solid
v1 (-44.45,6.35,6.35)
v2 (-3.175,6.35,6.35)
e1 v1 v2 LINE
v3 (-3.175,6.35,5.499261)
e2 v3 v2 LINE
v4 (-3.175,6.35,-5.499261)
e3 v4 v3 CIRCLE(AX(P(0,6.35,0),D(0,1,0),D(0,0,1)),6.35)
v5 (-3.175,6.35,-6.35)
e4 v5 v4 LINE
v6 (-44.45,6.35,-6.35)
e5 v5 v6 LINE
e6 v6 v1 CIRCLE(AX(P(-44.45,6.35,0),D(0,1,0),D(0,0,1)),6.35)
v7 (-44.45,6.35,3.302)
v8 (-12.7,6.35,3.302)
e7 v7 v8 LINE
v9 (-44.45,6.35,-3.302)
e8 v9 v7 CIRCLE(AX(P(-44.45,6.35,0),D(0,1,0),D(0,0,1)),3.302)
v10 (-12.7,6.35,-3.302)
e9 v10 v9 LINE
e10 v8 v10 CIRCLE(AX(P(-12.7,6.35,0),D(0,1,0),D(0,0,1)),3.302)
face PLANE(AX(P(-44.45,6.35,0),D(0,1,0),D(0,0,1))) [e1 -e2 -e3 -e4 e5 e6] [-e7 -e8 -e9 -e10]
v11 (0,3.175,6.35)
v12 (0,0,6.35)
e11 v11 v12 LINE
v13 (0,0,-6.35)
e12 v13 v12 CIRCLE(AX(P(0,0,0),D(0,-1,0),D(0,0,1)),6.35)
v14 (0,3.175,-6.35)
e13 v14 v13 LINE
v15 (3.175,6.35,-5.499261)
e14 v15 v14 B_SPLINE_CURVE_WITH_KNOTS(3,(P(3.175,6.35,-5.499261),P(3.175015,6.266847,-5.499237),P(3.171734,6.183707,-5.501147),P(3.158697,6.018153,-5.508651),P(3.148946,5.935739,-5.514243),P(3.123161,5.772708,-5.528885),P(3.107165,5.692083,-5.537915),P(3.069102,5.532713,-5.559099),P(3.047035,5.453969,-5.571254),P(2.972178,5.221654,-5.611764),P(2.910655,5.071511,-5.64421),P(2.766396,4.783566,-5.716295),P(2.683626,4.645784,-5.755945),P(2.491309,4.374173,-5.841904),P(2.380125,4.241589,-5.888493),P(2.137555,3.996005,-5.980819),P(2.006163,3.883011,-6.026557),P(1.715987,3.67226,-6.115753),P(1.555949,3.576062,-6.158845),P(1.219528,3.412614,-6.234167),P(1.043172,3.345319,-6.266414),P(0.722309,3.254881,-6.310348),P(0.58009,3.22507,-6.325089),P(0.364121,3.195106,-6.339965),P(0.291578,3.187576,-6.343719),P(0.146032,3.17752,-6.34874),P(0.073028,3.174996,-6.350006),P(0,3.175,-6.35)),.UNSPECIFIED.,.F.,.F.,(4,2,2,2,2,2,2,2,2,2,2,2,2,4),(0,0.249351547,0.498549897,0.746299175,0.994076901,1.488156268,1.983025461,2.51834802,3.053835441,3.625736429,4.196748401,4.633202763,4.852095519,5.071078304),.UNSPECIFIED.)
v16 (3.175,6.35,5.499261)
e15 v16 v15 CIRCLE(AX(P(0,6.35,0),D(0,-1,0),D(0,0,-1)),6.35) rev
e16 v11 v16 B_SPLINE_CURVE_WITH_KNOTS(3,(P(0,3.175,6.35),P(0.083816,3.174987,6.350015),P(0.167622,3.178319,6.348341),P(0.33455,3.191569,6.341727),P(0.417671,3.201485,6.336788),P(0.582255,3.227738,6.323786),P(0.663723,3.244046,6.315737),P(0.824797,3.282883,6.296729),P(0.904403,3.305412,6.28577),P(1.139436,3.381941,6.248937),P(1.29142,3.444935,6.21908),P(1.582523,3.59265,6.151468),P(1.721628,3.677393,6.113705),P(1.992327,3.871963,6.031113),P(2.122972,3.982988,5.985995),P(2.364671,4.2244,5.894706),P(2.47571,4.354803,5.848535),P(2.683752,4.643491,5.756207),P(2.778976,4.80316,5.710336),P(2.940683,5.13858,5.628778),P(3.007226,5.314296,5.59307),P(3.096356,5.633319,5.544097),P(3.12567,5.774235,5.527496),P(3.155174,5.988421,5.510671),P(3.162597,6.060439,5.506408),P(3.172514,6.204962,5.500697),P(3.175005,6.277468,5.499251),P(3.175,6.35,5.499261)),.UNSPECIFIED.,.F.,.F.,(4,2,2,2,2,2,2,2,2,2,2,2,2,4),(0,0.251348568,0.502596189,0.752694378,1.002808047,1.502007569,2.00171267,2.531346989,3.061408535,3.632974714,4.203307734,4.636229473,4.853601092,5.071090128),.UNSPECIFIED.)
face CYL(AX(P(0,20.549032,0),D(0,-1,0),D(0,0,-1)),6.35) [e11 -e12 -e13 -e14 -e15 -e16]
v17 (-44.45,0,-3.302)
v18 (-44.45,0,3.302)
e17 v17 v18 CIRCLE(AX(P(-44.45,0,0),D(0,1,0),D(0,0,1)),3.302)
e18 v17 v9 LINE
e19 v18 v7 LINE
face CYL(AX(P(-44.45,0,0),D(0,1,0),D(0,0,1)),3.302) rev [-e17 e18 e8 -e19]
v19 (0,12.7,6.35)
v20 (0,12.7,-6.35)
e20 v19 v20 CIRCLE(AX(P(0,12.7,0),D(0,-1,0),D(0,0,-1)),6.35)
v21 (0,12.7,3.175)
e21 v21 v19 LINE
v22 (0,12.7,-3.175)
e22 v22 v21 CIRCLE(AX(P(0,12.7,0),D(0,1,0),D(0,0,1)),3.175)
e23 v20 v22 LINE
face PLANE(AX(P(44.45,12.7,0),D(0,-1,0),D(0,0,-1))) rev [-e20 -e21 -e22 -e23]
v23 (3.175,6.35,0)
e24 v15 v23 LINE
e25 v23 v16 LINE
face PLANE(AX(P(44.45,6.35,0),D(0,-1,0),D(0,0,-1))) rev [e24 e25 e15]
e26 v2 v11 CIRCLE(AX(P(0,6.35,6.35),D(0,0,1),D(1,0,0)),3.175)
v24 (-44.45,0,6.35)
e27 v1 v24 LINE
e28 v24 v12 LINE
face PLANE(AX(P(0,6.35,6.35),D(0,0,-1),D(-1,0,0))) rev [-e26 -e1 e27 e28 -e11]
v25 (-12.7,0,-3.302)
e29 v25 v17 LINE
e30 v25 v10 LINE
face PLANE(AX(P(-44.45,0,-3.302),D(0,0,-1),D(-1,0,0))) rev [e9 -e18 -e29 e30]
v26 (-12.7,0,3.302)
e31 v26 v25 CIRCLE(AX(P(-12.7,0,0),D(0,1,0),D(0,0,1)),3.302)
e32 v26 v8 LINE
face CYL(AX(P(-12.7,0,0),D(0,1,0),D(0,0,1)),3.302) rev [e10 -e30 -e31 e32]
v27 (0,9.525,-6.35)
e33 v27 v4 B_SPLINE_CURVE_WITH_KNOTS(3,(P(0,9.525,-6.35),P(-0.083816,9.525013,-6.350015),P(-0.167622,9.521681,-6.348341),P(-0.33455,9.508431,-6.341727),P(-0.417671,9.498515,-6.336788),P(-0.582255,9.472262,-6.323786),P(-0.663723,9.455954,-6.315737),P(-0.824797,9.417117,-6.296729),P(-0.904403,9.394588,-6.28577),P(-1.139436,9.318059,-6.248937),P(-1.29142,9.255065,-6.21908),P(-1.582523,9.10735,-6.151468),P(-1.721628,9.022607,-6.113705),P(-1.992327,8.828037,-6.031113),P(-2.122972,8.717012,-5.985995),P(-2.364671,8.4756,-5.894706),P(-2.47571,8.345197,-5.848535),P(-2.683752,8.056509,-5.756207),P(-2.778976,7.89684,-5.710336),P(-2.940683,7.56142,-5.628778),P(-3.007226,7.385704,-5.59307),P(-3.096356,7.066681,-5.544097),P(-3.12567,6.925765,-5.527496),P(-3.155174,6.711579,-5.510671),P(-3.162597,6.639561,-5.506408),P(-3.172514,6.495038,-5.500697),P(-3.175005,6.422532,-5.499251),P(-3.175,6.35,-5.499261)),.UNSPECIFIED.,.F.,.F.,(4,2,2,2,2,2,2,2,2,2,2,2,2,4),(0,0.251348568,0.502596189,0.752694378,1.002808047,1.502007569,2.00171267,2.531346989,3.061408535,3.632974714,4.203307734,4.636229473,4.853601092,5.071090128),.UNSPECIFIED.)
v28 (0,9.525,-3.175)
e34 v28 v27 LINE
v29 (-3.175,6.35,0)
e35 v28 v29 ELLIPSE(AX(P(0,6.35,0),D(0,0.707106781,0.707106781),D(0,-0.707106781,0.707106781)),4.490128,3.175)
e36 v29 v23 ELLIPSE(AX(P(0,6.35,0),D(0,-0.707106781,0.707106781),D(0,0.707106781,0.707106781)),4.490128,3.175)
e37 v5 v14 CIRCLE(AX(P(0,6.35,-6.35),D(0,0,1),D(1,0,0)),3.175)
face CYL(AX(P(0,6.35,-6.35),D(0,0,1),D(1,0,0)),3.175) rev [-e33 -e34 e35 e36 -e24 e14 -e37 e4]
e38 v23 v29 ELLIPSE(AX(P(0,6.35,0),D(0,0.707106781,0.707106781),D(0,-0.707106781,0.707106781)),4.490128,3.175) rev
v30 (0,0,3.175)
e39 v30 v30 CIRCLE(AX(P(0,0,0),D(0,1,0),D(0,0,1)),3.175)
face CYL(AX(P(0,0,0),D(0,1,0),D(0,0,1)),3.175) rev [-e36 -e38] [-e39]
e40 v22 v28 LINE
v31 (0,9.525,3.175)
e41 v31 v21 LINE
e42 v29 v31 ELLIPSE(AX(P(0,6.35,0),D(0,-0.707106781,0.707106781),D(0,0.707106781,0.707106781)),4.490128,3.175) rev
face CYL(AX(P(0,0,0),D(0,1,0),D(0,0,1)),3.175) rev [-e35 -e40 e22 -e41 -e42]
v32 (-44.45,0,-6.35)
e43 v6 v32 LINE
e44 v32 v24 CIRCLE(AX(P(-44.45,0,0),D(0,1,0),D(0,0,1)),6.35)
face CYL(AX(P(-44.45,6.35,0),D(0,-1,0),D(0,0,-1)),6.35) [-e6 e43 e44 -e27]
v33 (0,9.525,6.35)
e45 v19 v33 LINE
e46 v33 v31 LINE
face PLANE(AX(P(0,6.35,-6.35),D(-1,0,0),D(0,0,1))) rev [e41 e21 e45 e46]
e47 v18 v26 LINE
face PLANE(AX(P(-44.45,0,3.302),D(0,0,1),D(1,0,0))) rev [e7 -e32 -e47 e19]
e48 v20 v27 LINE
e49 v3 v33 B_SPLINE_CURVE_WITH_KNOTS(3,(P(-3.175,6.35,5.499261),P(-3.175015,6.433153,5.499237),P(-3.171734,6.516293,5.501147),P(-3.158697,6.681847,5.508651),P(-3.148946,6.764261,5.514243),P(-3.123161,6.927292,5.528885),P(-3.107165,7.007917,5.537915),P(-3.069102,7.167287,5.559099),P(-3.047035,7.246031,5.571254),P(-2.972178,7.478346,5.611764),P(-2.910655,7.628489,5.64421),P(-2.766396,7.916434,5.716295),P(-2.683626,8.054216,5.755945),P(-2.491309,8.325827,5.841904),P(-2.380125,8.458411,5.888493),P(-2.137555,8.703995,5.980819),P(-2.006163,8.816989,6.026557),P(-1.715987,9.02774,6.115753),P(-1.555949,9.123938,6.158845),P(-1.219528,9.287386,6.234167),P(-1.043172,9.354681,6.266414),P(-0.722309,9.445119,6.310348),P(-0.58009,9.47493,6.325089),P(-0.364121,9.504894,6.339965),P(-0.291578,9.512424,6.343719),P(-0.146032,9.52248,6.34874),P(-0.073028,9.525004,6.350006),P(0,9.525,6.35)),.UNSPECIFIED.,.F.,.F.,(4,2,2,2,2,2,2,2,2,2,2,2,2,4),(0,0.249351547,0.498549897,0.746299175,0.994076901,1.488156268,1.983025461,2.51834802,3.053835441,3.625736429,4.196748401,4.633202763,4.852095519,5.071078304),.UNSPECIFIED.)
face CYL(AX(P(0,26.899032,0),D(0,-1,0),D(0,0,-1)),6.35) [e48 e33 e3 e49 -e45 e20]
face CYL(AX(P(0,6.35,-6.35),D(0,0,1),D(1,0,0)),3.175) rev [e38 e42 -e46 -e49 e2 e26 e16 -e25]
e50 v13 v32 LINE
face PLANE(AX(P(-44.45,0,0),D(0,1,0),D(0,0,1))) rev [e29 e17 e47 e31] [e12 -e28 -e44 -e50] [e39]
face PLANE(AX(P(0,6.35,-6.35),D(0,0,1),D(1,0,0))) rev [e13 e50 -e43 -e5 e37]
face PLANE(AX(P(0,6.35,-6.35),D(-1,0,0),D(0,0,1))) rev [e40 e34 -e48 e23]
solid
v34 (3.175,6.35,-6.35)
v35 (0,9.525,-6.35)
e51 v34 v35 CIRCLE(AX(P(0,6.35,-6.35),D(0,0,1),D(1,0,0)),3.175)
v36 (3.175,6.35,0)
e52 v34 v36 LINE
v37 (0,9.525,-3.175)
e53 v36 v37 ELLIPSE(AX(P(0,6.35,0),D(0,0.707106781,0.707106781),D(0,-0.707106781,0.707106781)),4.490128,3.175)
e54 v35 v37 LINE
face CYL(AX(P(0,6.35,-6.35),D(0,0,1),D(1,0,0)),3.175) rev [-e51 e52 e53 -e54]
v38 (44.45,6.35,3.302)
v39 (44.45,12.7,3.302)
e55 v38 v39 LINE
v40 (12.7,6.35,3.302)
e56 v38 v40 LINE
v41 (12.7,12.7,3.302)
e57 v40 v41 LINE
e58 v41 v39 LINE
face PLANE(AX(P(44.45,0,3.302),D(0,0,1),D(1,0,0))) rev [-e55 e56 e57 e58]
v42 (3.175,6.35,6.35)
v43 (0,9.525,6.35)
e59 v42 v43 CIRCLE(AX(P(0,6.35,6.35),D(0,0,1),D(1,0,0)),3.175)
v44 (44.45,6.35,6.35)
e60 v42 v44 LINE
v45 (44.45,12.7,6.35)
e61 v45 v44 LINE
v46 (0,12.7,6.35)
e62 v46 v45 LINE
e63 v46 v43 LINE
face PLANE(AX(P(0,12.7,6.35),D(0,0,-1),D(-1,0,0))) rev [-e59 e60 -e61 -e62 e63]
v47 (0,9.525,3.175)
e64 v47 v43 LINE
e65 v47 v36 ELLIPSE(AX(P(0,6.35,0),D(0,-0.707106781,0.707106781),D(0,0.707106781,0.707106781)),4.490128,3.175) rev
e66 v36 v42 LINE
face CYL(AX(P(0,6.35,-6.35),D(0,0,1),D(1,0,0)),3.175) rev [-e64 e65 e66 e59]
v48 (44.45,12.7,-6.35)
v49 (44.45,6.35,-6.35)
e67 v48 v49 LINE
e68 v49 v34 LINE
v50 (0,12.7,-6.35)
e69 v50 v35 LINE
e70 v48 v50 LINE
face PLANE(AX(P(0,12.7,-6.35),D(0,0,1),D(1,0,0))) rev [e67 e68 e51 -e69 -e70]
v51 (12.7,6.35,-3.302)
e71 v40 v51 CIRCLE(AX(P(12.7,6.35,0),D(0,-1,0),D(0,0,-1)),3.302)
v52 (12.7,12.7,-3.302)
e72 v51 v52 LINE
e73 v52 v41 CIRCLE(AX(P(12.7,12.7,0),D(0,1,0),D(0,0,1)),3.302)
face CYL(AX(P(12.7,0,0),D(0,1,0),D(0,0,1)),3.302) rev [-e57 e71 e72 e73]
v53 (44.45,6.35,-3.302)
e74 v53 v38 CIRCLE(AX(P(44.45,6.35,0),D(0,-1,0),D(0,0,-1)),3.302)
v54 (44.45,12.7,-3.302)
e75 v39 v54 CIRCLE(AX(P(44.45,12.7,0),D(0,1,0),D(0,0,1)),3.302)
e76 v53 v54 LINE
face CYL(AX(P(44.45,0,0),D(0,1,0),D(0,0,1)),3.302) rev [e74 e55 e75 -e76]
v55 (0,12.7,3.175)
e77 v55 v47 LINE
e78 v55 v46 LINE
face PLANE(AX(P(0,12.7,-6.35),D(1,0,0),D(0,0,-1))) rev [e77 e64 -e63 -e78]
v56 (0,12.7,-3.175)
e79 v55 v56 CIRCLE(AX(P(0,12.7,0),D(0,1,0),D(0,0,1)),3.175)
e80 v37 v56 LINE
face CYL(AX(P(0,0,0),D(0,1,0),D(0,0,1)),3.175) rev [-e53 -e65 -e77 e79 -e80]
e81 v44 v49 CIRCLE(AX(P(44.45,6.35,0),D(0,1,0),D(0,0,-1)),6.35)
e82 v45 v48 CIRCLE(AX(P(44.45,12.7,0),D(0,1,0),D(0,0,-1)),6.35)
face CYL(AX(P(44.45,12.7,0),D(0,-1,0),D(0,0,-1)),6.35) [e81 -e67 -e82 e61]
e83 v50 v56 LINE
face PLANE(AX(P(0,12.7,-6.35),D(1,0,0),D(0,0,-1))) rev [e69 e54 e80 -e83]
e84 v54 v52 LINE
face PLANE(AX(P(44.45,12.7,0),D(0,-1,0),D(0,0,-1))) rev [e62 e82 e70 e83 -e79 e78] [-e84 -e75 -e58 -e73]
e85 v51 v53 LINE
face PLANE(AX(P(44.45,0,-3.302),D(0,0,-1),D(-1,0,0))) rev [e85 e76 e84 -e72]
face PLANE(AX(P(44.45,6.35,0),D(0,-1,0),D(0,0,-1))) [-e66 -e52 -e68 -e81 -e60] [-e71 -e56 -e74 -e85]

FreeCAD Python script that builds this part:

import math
import FreeCAD as App
import Part
import Sketcher
Q = App.Units.Quantity

doc = App.newDocument("Part")
body = doc.addObject("PartDesign::Body", "Body")

# Sketch on XZ plane
sketch1 = doc.addObject("Sketcher::SketchObject", "Sketch")
body.addObject(sketch1)
sketch1.AttachmentSupport = (doc.XZ_Plane, [""])
sketch1.MapMode = "FlatFace"
sketch1.addGeometry(Part.LineSegment(App.Vector(0, -6, 0), App.Vector(-44, -6, 0)), False)
sketch1.addGeometry(Part.ArcOfCircle(Part.Circle(App.Vector(-44, 0, 0), App.Vector(0, 0, 1), 6), math.radians(90), math.radians(270)), False)
sketch1.addGeometry(Part.LineSegment(App.Vector(-44, 6, 0), App.Vector(0, 6, 0)), False)
sketch1.addGeometry(Part.LineSegment(App.Vector(0, 6, 0), App.Vector(0, -6, 0)), False)
sketch1.addConstraint(Sketcher.Constraint("Tangent", 0, 2, 1, 2))
sketch1.addConstraint(Sketcher.Constraint("Tangent", 1, 1, 2, 1))
sketch1.addConstraint(Sketcher.Constraint("Coincident", 2, 2, 3, 1))
sketch1.addConstraint(Sketcher.Constraint("Coincident", 3, 2, 0, 1))
sketch1.addConstraint(Sketcher.Constraint("Horizontal", 0))
sketch1.addConstraint(Sketcher.Constraint("Horizontal", 2))
sketch1.addConstraint(Sketcher.Constraint("Vertical", 3))
sketch1.addConstraint(Sketcher.Constraint("Symmetric", 2, 2, 3, 2, -1, 1))
sketch1.addConstraint(Sketcher.Constraint("Radius", 1, Q("0.25 in")))
sketch1.addConstraint(Sketcher.Constraint("DistanceX", 0, 2, 0, 1, Q("1.75 in")))
pad1 = doc.addObject("PartDesign::Pad", "Pad")
body.addObject(pad1)
pad1.Profile = sketch1
pad1.Length = Q("0.25 in")
pad1.Reversed = True

# Sketch on XZ plane
sketch2 = doc.addObject("Sketcher::SketchObject", "Sketch001")
body.addObject(sketch2)
sketch2.AttachmentSupport = (doc.XZ_Plane, [""])
sketch2.MapMode = "FlatFace"
sketch2.AttachmentOffset = App.Placement(App.Vector(0, 0, -0.25 * 25.4), App.Rotation())
sketch2.addGeometry(Part.LineSegment(App.Vector(0, 6, 0), App.Vector(0, -6, 0)), False)
sketch2.addGeometry(Part.ArcOfCircle(Part.Circle(App.Vector(0, 0, 0), App.Vector(0, 0, 1), 6), math.radians(90), math.radians(270)), False)
sketch2.addConstraint(Sketcher.Constraint("Coincident", 0, 1, 1, 1))
sketch2.addConstraint(Sketcher.Constraint("Coincident", 1, 2, 0, 2))
sketch2.addConstraint(Sketcher.Constraint("Vertical", 0))
sketch2.addConstraint(Sketcher.Constraint("Coincident", 1, 3, -1, 1))
sketch2.addConstraint(Sketcher.Constraint("PointOnObject", 0, 1, -2))
sketch2.addConstraint(Sketcher.Constraint("Radius", 1, Q("0.25 in")))
pad2 = doc.addObject("PartDesign::Pad", "Pad001")
body.addObject(pad2)
pad2.Profile = sketch2
pad2.Length = Q("0.25 in")
pad2.Reversed = True

# Sketch on XZ plane
sketch3 = doc.addObject("Sketcher::SketchObject", "Sketch002")
body.addObject(sketch3)
sketch3.AttachmentSupport = (doc.XZ_Plane, [""])
sketch3.MapMode = "FlatFace"
sketch3.addGeometry(Part.LineSegment(App.Vector(0, 6, 0), App.Vector(0, -6, 0)), False)
sketch3.addGeometry(Part.ArcOfCircle(Part.Circle(App.Vector(0, 0, 0), App.Vector(0, 0, 1), 6), math.radians(-90), math.radians(90)), False)
sketch3.addConstraint(Sketcher.Constraint("Coincident", 0, 1, 1, 2))
sketch3.addConstraint(Sketcher.Constraint("Coincident", 1, 1, 0, 2))
sketch3.addConstraint(Sketcher.Constraint("Vertical", 0))
sketch3.addConstraint(Sketcher.Constraint("Coincident", 1, 3, -1, 1))
sketch3.addConstraint(Sketcher.Constraint("PointOnObject", 0, 1, -2))
sketch3.addConstraint(Sketcher.Constraint("Radius", 1, Q("0.25 in")))
pad3 = doc.addObject("PartDesign::Pad", "Pad002")
body.addObject(pad3)
pad3.Profile = sketch3
pad3.Length = Q("0.25 in")
pad3.Reversed = True
body2 = doc.addObject("PartDesign::Body", "Body001")

# Sketch on XZ plane
sketch4 = doc.addObject("Sketcher::SketchObject", "Sketch003")
body2.addObject(sketch4)
sketch4.AttachmentSupport = (doc.getObject("XZ_Plane001"), [""])
sketch4.MapMode = "FlatFace"
sketch4.AttachmentOffset = App.Placement(App.Vector(0, 0, -0.25 * 25.4), App.Rotation())
sketch4.addGeometry(Part.LineSegment(App.Vector(44, -6, 0), App.Vector(0, -6, 0)), False)
sketch4.addGeometry(Part.LineSegment(App.Vector(0, -6, 0), App.Vector(0, 6, 0)), False)
sketch4.addGeometry(Part.LineSegment(App.Vector(0, 6, 0), App.Vector(44, 6, 0)), False)
sketch4.addGeometry(Part.ArcOfCircle(Part.Circle(App.Vector(44, 0, 0), App.Vector(0, 0, 1), 6), math.radians(-90), math.radians(90)), False)
sketch4.addConstraint(Sketcher.Constraint("Coincident", 0, 2, 1, 1))
sketch4.addConstraint(Sketcher.Constraint("Coincident", 1, 2, 2, 1))
sketch4.addConstraint(Sketcher.Constraint("Tangent", 2, 2, 3, 2))
sketch4.addConstraint(Sketcher.Constraint("Tangent", 3, 1, 0, 1))
sketch4.addConstraint(Sketcher.Constraint("Horizontal", 0))
sketch4.addConstraint(Sketcher.Constraint("Vertical", 1))
sketch4.addConstraint(Sketcher.Constraint("Horizontal", 2))
sketch4.addConstraint(Sketcher.Constraint("Symmetric", 0, 2, 1, 2, -1, 1))
sketch4.addConstraint(Sketcher.Constraint("Radius", 3, Q("0.25 in")))
sketch4.addConstraint(Sketcher.Constraint("DistanceX", 0, 2, 0, 1, Q("1.75 in")))
pad4 = doc.addObject("PartDesign::Pad", "Pad003")
body2.addObject(pad4)
pad4.Profile = sketch4
pad4.Length = Q("0.25 in")
pad4.Reversed = True
body3 = doc.addObject("PartDesign::Body", "Body002")
body3.AllowCompound = True

# Sketch on XZ plane
sketch5 = doc.addObject("Sketcher::SketchObject", "Sketch004")
body3.addObject(sketch5)
sketch5.AttachmentSupport = (doc.getObject("XZ_Plane002"), [""])
sketch5.MapMode = "FlatFace"
sketch5.AttachmentOffset = App.Placement(App.Vector(0, 0, -0.5 * 25.4), App.Rotation())
sketch5.addGeometry(Part.LineSegment(App.Vector(-12.7, -3.3, 0), App.Vector(-44.5, -3.3, 0)), False)
sketch5.addGeometry(Part.ArcOfCircle(Part.Circle(App.Vector(-44.5, 0, 0), App.Vector(0, 0, 1), 3.3), math.radians(90), math.radians(270)), False)
sketch5.addGeometry(Part.LineSegment(App.Vector(-44.5, 3.3, 0), App.Vector(-12.7, 3.3, 0)), False)
sketch5.addGeometry(Part.ArcOfCircle(Part.Circle(App.Vector(-12.7, 0, 0), App.Vector(0, 0, 1), 3.3), math.radians(-90), math.radians(90)), False)
sketch5.addGeometry(Part.LineSegment(App.Vector(12.7, 3.3, 0), App.Vector(44.5, 3.3, 0)), False)
sketch5.addGeometry(Part.ArcOfCircle(Part.Circle(App.Vector(44.5, 0, 0), App.Vector(0, 0, 1), 3.3), math.radians(-90), math.radians(90)), False)
sketch5.addGeometry(Part.LineSegment(App.Vector(44.5, -3.3, 0), App.Vector(12.7, -3.3, 0)), False)
sketch5.addGeometry(Part.ArcOfCircle(Part.Circle(App.Vector(12.7, 0, 0), App.Vector(0, 0, 1), 3.3), math.radians(90), math.radians(270)), False)
sketch5.addConstraint(Sketcher.Constraint("Tangent", 0, 2, 1, 2))
sketch5.addConstraint(Sketcher.Constraint("Tangent", 1, 1, 2, 1))
sketch5.addConstraint(Sketcher.Constraint("Tangent", 2, 2, 3, 2))
sketch5.addConstraint(Sketcher.Constraint("Tangent", 3, 1, 0, 1))
sketch5.addConstraint(Sketcher.Constraint("Tangent", 4, 2, 5, 2))
sketch5.addConstraint(Sketcher.Constraint("Tangent", 5, 1, 6, 1))
sketch5.addConstraint(Sketcher.Constraint("Tangent", 6, 2, 7, 2))
sketch5.addConstraint(Sketcher.Constraint("Tangent", 7, 1, 4, 1))
sketch5.addConstraint(Sketcher.Constraint("Horizontal", 0))
sketch5.addConstraint(Sketcher.Constraint("Horizontal", 2))
sketch5.addConstraint(Sketcher.Constraint("Horizontal", 4))
sketch5.addConstraint(Sketcher.Constraint("Horizontal", 6))
sketch5.addConstraint(Sketcher.Constraint("Equal", 3, 5))
sketch5.addConstraint(Sketcher.Constraint("Symmetric", 1, 3, 5, 3, -1, 1))
sketch5.addConstraint(Sketcher.Constraint("Symmetric", 3, 3, 7, 3, -2))
sketch5.addConstraint(Sketcher.Constraint("Radius", 1, Q("0.13 in")))
sketch5.addConstraint(Sketcher.Constraint("DistanceX", 3, 3, 7, 3, Q("1 in")))
sketch5.addConstraint(Sketcher.Constraint("DistanceX", 0, 2, 0, 1, Q("1.25 in")))
pad5 = doc.addObject("PartDesign::Pad", "Pad004")
body3.addObject(pad5)
pad5.Profile = sketch5
pad5.Length = 53.747062
doc.recompute()

body4 = doc.addObject("PartDesign::Body", "Body003")
body4.BaseFeature = body3
boolean = doc.addObject("PartDesign::Boolean", "Boolean")
body.addObject(boolean)
boolean.Type = "Cut"
boolean.addObjects([body4])
doc.recompute()

boolean2 = doc.addObject("PartDesign::Boolean", "Boolean001")
body2.addObject(boolean2)
boolean2.Type = "Cut"
boolean2.addObjects([body3])
body5 = doc.addObject("PartDesign::Body", "Body004")

# Sketch on XY plane
sketch6 = doc.addObject("Sketcher::SketchObject", "Sketch005")
body5.addObject(sketch6)
sketch6.AttachmentSupport = (doc.getObject("XY_Plane004"), [""])
sketch6.MapMode = "FlatFace"
sketch6.AttachmentOffset = App.Placement(App.Vector(0, 0, 0.25 * 25.4), App.Rotation())
sketch6.addGeometry(Part.Circle(App.Vector(0, 6.3, 0), App.Vector(0, 0, 1), 3.2), False)
sketch6.addConstraint(Sketcher.Constraint("PointOnObject", 0, 3, -2))
sketch6.addConstraint(Sketcher.Constraint("Diameter", 0, Q("0.25 in")))
sketch6.addConstraint(Sketcher.Constraint("DistanceY", -1, 1, 0, 3, Q("0.25 in")))
pad6 = doc.addObject("PartDesign::Pad", "Pad005")
body5.addObject(pad6)
pad6.Profile = sketch6
pad6.Length = 54.881537
pad6.Reversed = True
doc.recompute()

body6 = doc.addObject("PartDesign::Body", "Body005")
body6.BaseFeature = body5
boolean3 = doc.addObject("PartDesign::Boolean", "Boolean002")
body.addObject(boolean3)
boolean3.Type = "Cut"
boolean3.addObjects([body6])
doc.recompute()

boolean4 = doc.addObject("PartDesign::Boolean", "Boolean003")
body2.addObject(boolean4)
boolean4.Type = "Cut"
boolean4.addObjects([body5])
body7 = doc.addObject("PartDesign::Body", "Body006")

# Sketch on XZ plane
sketch7 = doc.addObject("Sketcher::SketchObject", "Sketch006")
body7.addObject(sketch7)
sketch7.AttachmentSupport = (doc.getObject("XZ_Plane006"), [""])
sketch7.MapMode = "FlatFace"
sketch7.AttachmentOffset = App.Placement(App.Vector(0, 0, -0.5 * 25.4), App.Rotation())
sketch7.addGeometry(Part.Circle(App.Vector(0, 0, 0), App.Vector(0, 0, 1), 3.2), False)
sketch7.addConstraint(Sketcher.Constraint("Coincident", 0, 3, -1, 1))
sketch7.addConstraint(Sketcher.Constraint("Diameter", 0, Q("0.25 in")))
pad7 = doc.addObject("PartDesign::Pad", "Pad006")
body7.addObject(pad7)
pad7.Profile = sketch7
pad7.Length = 53.747062
doc.recompute()

body8 = doc.addObject("PartDesign::Body", "Body007")
body8.BaseFeature = body7
boolean5 = doc.addObject("PartDesign::Boolean", "Boolean004")
body.addObject(boolean5)
boolean5.Type = "Cut"
boolean5.addObjects([body8])
doc.recompute()

boolean6 = doc.addObject("PartDesign::Boolean", "Boolean005")
body2.addObject(boolean6)
boolean6.Type = "Cut"
boolean6.addObjects([body7])

doc.recompute()
